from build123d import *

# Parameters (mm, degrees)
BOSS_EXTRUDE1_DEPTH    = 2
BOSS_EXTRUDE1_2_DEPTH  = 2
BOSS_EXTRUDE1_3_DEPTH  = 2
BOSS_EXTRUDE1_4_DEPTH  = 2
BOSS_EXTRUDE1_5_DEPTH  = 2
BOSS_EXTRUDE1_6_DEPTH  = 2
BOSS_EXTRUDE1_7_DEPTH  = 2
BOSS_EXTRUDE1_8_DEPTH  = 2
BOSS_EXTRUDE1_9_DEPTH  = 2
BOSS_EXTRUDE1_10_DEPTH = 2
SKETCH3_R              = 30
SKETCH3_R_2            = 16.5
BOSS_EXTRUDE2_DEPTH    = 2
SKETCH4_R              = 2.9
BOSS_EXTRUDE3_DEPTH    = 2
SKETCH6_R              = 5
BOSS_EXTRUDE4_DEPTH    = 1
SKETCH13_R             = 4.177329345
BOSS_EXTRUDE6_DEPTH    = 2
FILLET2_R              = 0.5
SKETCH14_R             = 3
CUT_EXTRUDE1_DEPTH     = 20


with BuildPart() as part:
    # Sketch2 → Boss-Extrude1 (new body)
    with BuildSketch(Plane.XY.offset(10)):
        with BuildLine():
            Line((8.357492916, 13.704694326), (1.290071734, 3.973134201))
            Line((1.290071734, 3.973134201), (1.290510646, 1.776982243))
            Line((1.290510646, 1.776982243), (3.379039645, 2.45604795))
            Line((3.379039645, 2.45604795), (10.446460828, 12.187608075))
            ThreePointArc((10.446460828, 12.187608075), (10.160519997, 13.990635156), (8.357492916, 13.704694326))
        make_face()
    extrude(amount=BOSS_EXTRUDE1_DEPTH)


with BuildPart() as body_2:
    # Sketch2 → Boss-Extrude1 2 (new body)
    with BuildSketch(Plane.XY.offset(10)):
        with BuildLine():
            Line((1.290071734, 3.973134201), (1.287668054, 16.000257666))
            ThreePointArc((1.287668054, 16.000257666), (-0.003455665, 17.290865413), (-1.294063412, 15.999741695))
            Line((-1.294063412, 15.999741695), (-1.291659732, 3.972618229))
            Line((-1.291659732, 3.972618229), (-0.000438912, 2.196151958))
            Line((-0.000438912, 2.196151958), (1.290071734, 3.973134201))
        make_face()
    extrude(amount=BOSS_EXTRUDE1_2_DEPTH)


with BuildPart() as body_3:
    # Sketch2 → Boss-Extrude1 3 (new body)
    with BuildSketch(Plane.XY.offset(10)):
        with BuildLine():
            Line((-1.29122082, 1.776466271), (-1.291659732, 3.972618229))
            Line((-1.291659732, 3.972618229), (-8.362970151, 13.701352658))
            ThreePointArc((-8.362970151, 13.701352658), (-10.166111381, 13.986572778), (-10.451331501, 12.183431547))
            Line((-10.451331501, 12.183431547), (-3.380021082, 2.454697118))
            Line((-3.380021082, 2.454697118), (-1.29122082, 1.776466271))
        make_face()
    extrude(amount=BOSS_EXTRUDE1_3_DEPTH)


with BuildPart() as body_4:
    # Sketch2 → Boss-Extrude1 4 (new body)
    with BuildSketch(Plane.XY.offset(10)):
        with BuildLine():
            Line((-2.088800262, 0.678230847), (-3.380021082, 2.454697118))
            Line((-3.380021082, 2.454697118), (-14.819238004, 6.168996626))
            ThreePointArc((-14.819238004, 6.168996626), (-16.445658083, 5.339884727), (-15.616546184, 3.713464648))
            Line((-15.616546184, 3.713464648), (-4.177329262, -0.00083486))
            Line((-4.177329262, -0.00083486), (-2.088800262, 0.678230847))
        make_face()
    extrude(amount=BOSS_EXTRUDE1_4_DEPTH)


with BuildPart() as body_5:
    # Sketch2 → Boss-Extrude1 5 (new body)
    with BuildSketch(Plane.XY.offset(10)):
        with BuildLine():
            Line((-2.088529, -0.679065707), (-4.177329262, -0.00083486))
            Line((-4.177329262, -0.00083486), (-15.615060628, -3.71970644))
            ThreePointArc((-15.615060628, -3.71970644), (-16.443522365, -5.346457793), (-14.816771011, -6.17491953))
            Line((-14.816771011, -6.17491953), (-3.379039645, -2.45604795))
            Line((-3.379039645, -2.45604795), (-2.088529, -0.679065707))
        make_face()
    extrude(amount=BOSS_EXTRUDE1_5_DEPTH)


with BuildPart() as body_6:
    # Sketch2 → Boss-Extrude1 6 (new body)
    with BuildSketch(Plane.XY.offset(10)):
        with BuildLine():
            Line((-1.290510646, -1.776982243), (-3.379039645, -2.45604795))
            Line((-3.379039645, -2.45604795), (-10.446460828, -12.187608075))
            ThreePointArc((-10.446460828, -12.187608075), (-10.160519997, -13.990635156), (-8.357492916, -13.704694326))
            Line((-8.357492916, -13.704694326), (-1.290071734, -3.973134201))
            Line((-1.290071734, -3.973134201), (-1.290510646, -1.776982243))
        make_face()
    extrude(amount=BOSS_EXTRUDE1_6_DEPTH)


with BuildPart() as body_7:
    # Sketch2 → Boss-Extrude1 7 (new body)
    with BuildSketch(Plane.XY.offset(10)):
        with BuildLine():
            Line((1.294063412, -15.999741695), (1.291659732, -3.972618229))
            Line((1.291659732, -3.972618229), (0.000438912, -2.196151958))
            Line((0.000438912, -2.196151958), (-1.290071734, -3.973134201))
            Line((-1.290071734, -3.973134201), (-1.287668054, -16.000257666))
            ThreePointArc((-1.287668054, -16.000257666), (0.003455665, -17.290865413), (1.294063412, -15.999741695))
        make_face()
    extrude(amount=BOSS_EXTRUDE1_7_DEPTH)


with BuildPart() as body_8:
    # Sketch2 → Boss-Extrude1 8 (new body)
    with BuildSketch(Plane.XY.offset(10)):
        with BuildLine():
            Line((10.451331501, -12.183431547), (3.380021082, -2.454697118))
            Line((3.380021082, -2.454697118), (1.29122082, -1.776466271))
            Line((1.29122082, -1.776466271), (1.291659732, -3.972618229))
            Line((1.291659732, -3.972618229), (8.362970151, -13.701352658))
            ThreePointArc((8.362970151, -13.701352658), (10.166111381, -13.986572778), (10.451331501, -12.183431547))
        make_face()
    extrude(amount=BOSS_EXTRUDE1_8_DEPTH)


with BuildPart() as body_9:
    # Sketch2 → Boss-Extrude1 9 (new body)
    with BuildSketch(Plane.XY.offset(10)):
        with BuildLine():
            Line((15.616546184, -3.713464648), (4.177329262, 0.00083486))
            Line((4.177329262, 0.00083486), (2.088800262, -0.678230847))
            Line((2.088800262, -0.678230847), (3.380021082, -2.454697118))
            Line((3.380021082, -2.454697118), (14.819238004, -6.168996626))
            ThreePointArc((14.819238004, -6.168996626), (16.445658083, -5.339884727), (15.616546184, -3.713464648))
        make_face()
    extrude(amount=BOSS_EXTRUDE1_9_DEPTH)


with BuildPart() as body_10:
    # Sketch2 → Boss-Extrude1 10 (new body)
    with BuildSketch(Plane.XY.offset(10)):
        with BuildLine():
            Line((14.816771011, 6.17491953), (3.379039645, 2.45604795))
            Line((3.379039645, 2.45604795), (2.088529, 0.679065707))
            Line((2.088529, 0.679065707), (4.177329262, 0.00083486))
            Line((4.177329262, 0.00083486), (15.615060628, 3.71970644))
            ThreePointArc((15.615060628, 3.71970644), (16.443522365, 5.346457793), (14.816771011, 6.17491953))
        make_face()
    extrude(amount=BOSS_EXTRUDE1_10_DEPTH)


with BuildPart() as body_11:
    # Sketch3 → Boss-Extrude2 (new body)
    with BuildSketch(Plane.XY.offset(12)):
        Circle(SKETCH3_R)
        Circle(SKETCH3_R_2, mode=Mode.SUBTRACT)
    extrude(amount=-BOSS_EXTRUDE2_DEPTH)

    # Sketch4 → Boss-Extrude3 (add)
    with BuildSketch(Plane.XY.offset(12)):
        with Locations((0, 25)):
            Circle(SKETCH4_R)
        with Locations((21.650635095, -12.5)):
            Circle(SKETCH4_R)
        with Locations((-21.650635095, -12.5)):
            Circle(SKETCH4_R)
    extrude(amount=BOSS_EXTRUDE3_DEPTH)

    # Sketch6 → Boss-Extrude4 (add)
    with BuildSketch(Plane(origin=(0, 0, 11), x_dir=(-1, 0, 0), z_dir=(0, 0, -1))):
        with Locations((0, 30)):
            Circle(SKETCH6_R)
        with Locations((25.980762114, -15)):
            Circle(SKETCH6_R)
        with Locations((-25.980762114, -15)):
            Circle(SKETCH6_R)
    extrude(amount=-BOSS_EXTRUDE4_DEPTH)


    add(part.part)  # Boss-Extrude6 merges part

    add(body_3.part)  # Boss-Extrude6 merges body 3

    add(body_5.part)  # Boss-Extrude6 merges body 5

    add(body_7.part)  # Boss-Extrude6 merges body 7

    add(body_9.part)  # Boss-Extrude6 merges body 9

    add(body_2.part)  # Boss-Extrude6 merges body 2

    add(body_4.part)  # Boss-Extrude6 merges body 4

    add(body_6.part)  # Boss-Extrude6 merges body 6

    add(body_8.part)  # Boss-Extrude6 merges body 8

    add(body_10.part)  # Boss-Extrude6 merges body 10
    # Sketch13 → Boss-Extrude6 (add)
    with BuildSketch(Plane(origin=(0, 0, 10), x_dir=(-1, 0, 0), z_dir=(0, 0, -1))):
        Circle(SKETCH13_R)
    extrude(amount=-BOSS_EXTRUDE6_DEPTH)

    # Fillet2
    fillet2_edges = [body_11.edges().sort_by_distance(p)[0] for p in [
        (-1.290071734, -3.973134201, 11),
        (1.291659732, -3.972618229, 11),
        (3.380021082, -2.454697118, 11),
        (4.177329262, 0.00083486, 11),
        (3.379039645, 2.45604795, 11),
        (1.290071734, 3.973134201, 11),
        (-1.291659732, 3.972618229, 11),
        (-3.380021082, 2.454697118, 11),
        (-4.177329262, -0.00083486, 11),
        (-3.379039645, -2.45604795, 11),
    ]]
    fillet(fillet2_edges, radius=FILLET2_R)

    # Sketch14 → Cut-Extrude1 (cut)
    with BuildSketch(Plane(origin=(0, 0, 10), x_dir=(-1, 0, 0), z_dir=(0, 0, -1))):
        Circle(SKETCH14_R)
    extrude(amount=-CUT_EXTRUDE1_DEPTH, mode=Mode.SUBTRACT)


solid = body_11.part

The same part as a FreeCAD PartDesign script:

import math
import FreeCAD as App
import Part
import Sketcher

V = App.Vector
Q = App.Units.Quantity


def edges_at(feature, points):
    """Names of the edges that pass closest to the given points."""
    edges = feature.Shape.Edges
    near = lambda p: min(range(len(edges)), key=lambda i: edges[i].distToShape(Part.Vertex(*p))[0])
    return sorted({f"Edge{near(p) + 1}" for p in points})

doc = App.newDocument("Part")
body = doc.addObject("PartDesign::Body", "Body")

# Sketch on XY plane
sketch1 = body.newObject("Sketcher::SketchObject", "Sketch")
sketch1.AttachmentSupport = (doc.getObject("XY_Plane"), [""])
sketch1.MapMode = "FlatFace"
sketch1.AttachmentOffset = App.Placement(V(0, 0, 10), App.Rotation())
sketch1.addGeometry(Part.LineSegment(V(8.4, 13.7, 0), V(1.3, 4, 0)), False)
sketch1.addGeometry(Part.LineSegment(V(1.3, 4, 0), V(1.3, 1.8, 0)), False)
sketch1.addGeometry(Part.LineSegment(V(1.3, 1.8, 0), V(3.4, 2.5, 0)), False)
sketch1.addGeometry(Part.LineSegment(V(3.4, 2.5, 0), V(10.4, 12.2, 0)), False)
sketch1.addGeometry(Part.ArcOfCircle(Part.Circle(V(9.4, 12.9, 0), V(0, 0, 1), 1.3), math.radians(-36), math.radians(144)), False)
sketch1.addConstraint(Sketcher.Constraint("Coincident", 0, 2, 1, 1))
sketch1.addConstraint(Sketcher.Constraint("Coincident", 1, 2, 2, 1))
sketch1.addConstraint(Sketcher.Constraint("Coincident", 2, 2, 3, 1))
sketch1.addConstraint(Sketcher.Constraint("Tangent", 3, 2, 4, 1))
sketch1.addConstraint(Sketcher.Constraint("Tangent", 4, 2, 0, 1))
sketch1.addConstraint(Sketcher.Constraint("Parallel", 0, 3))
sketch1.addConstraint(Sketcher.Constraint("Equal", 1, 2))
sketch1.addConstraint(Sketcher.Constraint("Equal", 0, 3))
sketch1.addConstraint(Sketcher.Constraint("Radius", 4, Q("1.290866 mm")))
sketch1.addConstraint(Sketcher.Constraint("DistanceY", -1, 1, 4, 3, Q("12.946151 mm")))
sketch1.addConstraint(Sketcher.Constraint("DistanceX", -1, 1, 0, 2, Q("1.290072 mm")))
sketch1.addConstraint(Sketcher.Constraint("DistanceX", -1, 1, 1, 2, Q("1.290511 mm")))
sketch1.addConstraint(Sketcher.Constraint("DistanceX", -1, 1, 2, 2, Q("3.37904 mm")))
sketch1.addConstraint(Sketcher.Constraint("DistanceX", -1, 1, 3, 2, Q("10.446461 mm")))
pad1 = body.newObject("PartDesign::Pad", "Pad")
pad1.Profile = sketch1
pad1.Length = 2
body2 = doc.addObject("PartDesign::Body", "Body001")

# Sketch on XY plane
sketch2 = body2.newObject("Sketcher::SketchObject", "Sketch001")
sketch2.AttachmentSupport = (doc.getObject("XY_Plane001"), [""])
sketch2.MapMode = "FlatFace"
sketch2.AttachmentOffset = App.Placement(V(0, 0, 10), App.Rotation())
sketch2.addGeometry(Part.LineSegment(V(1.3, 4, 0), V(1.3, 16, 0)), False)
sketch2.addGeometry(Part.ArcOfCircle(Part.Circle(V(0, 16, 0), V(0, 0, 1), 1.3), math.radians(0), math.radians(180)), False)
sketch2.addGeometry(Part.LineSegment(V(-1.3, 16, 0), V(-1.3, 4, 0)), False)
sketch2.addGeometry(Part.LineSegment(V(-1.3, 4, 0), V(0, 2.2, 0)), False)
sketch2.addGeometry(Part.LineSegment(V(0, 2.2, 0), V(1.3, 4, 0)), False)
sketch2.addConstraint(Sketcher.Constraint("Tangent", 0, 2, 1, 1))
sketch2.addConstraint(Sketcher.Constraint("Tangent", 1, 2, 2, 1))
sketch2.addConstraint(Sketcher.Constraint("Coincident", 2, 2, 3, 1))
sketch2.addConstraint(Sketcher.Constraint("Coincident", 3, 2, 4, 1))
sketch2.addConstraint(Sketcher.Constraint("Coincident", 4, 2, 0, 1))
sketch2.addConstraint(Sketcher.Constraint("Parallel", 0, 2))
sketch2.addConstraint(Sketcher.Constraint("Equal", 0, 2))
sketch2.addConstraint(Sketcher.Constraint("Equal", 3, 4))
sketch2.addConstraint(Sketcher.Constraint("DistanceY", -1, 1, 1, 3, Q("16 mm")))
sketch2.addConstraint(Sketcher.Constraint("Radius", 1, Q("1.290866 mm")))
sketch2.addConstraint(Sketcher.Constraint("DistanceX", -1, 1, 0, 2, Q("1.287668 mm")))
sketch2.addConstraint(Sketcher.Constraint("DistanceY", -1, 1, 1, 2, Q("15.999742 mm")))
sketch2.addConstraint(Sketcher.Constraint("DistanceY", -1, 1, 2, 2, Q("3.972618 mm")))
sketch2.addConstraint(Sketcher.Constraint("DistanceY", -1, 1, 3, 2, Q("2.196152 mm")))
pad2 = body2.newObject("PartDesign::Pad", "Pad001")
pad2.Profile = sketch2
pad2.Length = 2
body3 = doc.addObject("PartDesign::Body", "Body002")

# Sketch on XY plane
sketch3 = body3.newObject("Sketcher::SketchObject", "Sketch002")
sketch3.AttachmentSupport = (doc.getObject("XY_Plane002"), [""])
sketch3.MapMode = "FlatFace"
sketch3.AttachmentOffset = App.Placement(V(0, 0, 10), App.Rotation())
sketch3.addGeometry(Part.LineSegment(V(-1.3, 1.8, 0), V(-1.3, 4, 0)), False)
sketch3.addGeometry(Part.LineSegment(V(-1.3, 4, 0), V(-8.4, 13.7, 0)), False)
sketch3.addGeometry(Part.ArcOfCircle(Part.Circle(V(-9.4, 12.9, 0), V(0, 0, 1), 1.3), math.radians(36), math.radians(216)), False)
sketch3.addGeometry(Part.LineSegment(V(-10.5, 12.2, 0), V(-3.4, 2.5, 0)), False)
sketch3.addGeometry(Part.LineSegment(V(-3.4, 2.5, 0), V(-1.3, 1.8, 0)), False)
sketch3.addConstraint(Sketcher.Constraint("Coincident", 0, 2, 1, 1))
sketch3.addConstraint(Sketcher.Constraint("Tangent", 1, 2, 2, 1))
sketch3.addConstraint(Sketcher.Constraint("Tangent", 2, 2, 3, 1))
sketch3.addConstraint(Sketcher.Constraint("Coincident", 3, 2, 4, 1))
sketch3.addConstraint(Sketcher.Constraint("Coincident", 4, 2, 0, 1))
sketch3.addConstraint(Sketcher.Constraint("Parallel", 1, 3))
sketch3.addConstraint(Sketcher.Constraint("Equal", 1, 3))
sketch3.addConstraint(Sketcher.Constraint("Equal", 0, 4))
sketch3.addConstraint(Sketcher.Constraint("Radius", 2, Q("1.290866 mm")))
sketch3.addConstraint(Sketcher.Constraint("DistanceX", 3, 2, 4, 2, Q("2.0888 mm")))
sketch3.addConstraint(Sketcher.Constraint("DistanceX", 2, 3, -1, 1, Q("9.407151 mm")))
sketch3.addConstraint(Sketcher.Constraint("DistanceX", 0, 2, -1, 1, Q("1.29166 mm")))
sketch3.addConstraint(Sketcher.Constraint("DistanceY", -1, 1, 0, 2, Q("3.972618 mm")))
sketch3.addConstraint(Sketcher.Constraint("DistanceX", 1, 2, -1, 1, Q("8.36297 mm")))
pad3 = body3.newObject("PartDesign::Pad", "Pad002")
pad3.Profile = sketch3
pad3.Length = 2
body4 = doc.addObject("PartDesign::Body", "Body003")

# Sketch on XY plane
sketch4 = body4.newObject("Sketcher::SketchObject", "Sketch003")
sketch4.AttachmentSupport = (doc.getObject("XY_Plane003"), [""])
sketch4.MapMode = "FlatFace"
sketch4.AttachmentOffset = App.Placement(V(0, 0, 10), App.Rotation())
sketch4.addGeometry(Part.LineSegment(V(-2.1, 0.7, 0), V(-3.4, 2.5, 0)), False)
sketch4.addGeometry(Part.LineSegment(V(-3.4, 2.5, 0), V(-14.8, 6.2, 0)), False)
sketch4.addGeometry(Part.ArcOfCircle(Part.Circle(V(-15.2, 4.9, 0), V(0, 0, 1), 1.3), math.radians(72), math.radians(252)), False)
sketch4.addGeometry(Part.LineSegment(V(-15.6, 3.7, 0), V(-4.2, 0, 0)), False)
sketch4.addGeometry(Part.LineSegment(V(-4.2, 0, 0), V(-2.1, 0.7, 0)), False)
sketch4.addConstraint(Sketcher.Constraint("Coincident", 0, 2, 1, 1))
sketch4.addConstraint(Sketcher.Constraint("Tangent", 1, 2, 2, 1))
sketch4.addConstraint(Sketcher.Constraint("Tangent", 2, 2, 3, 1))
sketch4.addConstraint(Sketcher.Constraint("Coincident", 3, 2, 4, 1))
sketch4.addConstraint(Sketcher.Constraint("Coincident", 4, 2, 0, 1))
sketch4.addConstraint(Sketcher.Constraint("Parallel", 1, 3))
sketch4.addConstraint(Sketcher.Constraint("Equal", 1, 3))
sketch4.addConstraint(Sketcher.Constraint("Equal", 0, 4))
sketch4.addConstraint(Sketcher.Constraint("Radius", 2, Q("1.290866 mm")))
sketch4.addConstraint(Sketcher.Constraint("DistanceY", 4, 2, 2, 3, Q("4.263 mm")))
sketch4.addConstraint(Sketcher.Constraint("DistanceX", 4, 2, -1, 1, Q("2.0888 mm")))
sketch4.addConstraint(Sketcher.Constraint("DistanceY", 0, 2, 1, 2, Q("3.7143 mm")))
sketch4.addConstraint(Sketcher.Constraint("DistanceY", -1, 1, 2, 3, Q("4.941231 mm")))
sketch4.addConstraint(Sketcher.Constraint("DistanceX", 0, 2, -1, 1, Q("3.380021 mm")))
pad4 = body4.newObject("PartDesign::Pad", "Pad003")
pad4.Profile = sketch4
pad4.Length = 2
body5 = doc.addObject("PartDesign::Body", "Body004")

# Sketch on XY plane
sketch5 = body5.newObject("Sketcher::SketchObject", "Sketch004")
sketch5.AttachmentSupport = (doc.getObject("XY_Plane004"), [""])
sketch5.MapMode = "FlatFace"
sketch5.AttachmentOffset = App.Placement(V(0, 0, 10), App.Rotation())
sketch5.addGeometry(Part.LineSegment(V(-2.1, -0.7, 0), V(-4.2, 0, 0)), False)
sketch5.addGeometry(Part.LineSegment(V(-4.2, 0, 0), V(-15.6, -3.7, 0)), False)
sketch5.addGeometry(Part.ArcOfCircle(Part.Circle(V(-15.2, -4.9, 0), V(0, 0, 1), 1.3), math.radians(108), math.radians(288)), False)
sketch5.addGeometry(Part.LineSegment(V(-14.8, -6.2, 0), V(-3.4, -2.5, 0)), False)
sketch5.addGeometry(Part.LineSegment(V(-3.4, -2.5, 0), V(-2.1, -0.7, 0)), False)
sketch5.addConstraint(Sketcher.Constraint("Coincident", 0, 2, 1, 1))
sketch5.addConstraint(Sketcher.Constraint("Tangent", 1, 2, 2, 1))
sketch5.addConstraint(Sketcher.Constraint("Tangent", 2, 2, 3, 1))
sketch5.addConstraint(Sketcher.Constraint("Coincident", 3, 2, 4, 1))
sketch5.addConstraint(Sketcher.Constraint("Coincident", 4, 2, 0, 1))
sketch5.addConstraint(Sketcher.Constraint("Parallel", 1, 3))
sketch5.addConstraint(Sketcher.Constraint("Equal", 1, 3))
sketch5.addConstraint(Sketcher.Constraint("Equal", 0, 4))
sketch5.addConstraint(Sketcher.Constraint("Radius", 2, Q("1.290866 mm")))
sketch5.addConstraint(Sketcher.Constraint("DistanceX", 0, 2, 4, 2, Q("2.0888 mm")))
sketch5.addConstraint(Sketcher.Constraint("DistanceX", 0, 2, -1, 1, Q("4.177329 mm")))
sketch5.addConstraint(Sketcher.Constraint("DistanceX", 1, 2, -1, 1, Q("15.615061 mm")))
sketch5.addConstraint(Sketcher.Constraint("DistanceX", 2, 2, -1, 1, Q("14.816771 mm")))
sketch5.addConstraint(Sketcher.Constraint("DistanceY", 2, 2, -1, 1, Q("6.17492 mm")))
pad5 = body5.newObject("PartDesign::Pad", "Pad004")
pad5.Profile = sketch5
pad5.Length = 2
body6 = doc.addObject("PartDesign::Body", "Body005")

# Sketch on XY plane
sketch6 = body6.newObject("Sketcher::SketchObject", "Sketch005")
sketch6.AttachmentSupport = (doc.getObject("XY_Plane005"), [""])
sketch6.MapMode = "FlatFace"
sketch6.AttachmentOffset = App.Placement(V(0, 0, 10), App.Rotation())
sketch6.addGeometry(Part.LineSegment(V(-1.3, -1.8, 0), V(-3.4, -2.5, 0)), False)
sketch6.addGeometry(Part.LineSegment(V(-3.4, -2.5, 0), V(-10.4, -12.2, 0)), False)
sketch6.addGeometry(Part.ArcOfCircle(Part.Circle(V(-9.4, -12.9, 0), V(0, 0, 1), 1.3), math.radians(144), math.radians(324)), False)
sketch6.addGeometry(Part.LineSegment(V(-8.4, -13.7, 0), V(-1.3, -4, 0)), False)
sketch6.addGeometry(Part.LineSegment(V(-1.3, -4, 0), V(-1.3, -1.8, 0)), False)
sketch6.addConstraint(Sketcher.Constraint("Coincident", 0, 2, 1, 1))
sketch6.addConstraint(Sketcher.Constraint("Tangent", 1, 2, 2, 1))
sketch6.addConstraint(Sketcher.Constraint("Tangent", 2, 2, 3, 1))
sketch6.addConstraint(Sketcher.Constraint("Coincident", 3, 2, 4, 1))
sketch6.addConstraint(Sketcher.Constraint("Coincident", 4, 2, 0, 1))
sketch6.addConstraint(Sketcher.Constraint("Parallel", 1, 3))
sketch6.addConstraint(Sketcher.Constraint("Equal", 1, 3))
sketch6.addConstraint(Sketcher.Constraint("Equal", 0, 4))
sketch6.addConstraint(Sketcher.Constraint("Radius", 2, Q("1.290866 mm")))
sketch6.addConstraint(Sketcher.Constraint("DistanceY", 2, 3, -1, 1, Q("12.946151 mm")))
sketch6.addConstraint(Sketcher.Constraint("DistanceX", 0, 2, -1, 1, Q("3.37904 mm")))
sketch6.addConstraint(Sketcher.Constraint("DistanceX", 1, 2, -1, 1, Q("10.446461 mm")))
sketch6.addConstraint(Sketcher.Constraint("DistanceY", 1, 2, -1, 1, Q("12.187608 mm")))
sketch6.addConstraint(Sketcher.Constraint("DistanceX", 4, 2, -1, 1, Q("1.290511 mm")))
pad6 = body6.newObject("PartDesign::Pad", "Pad005")
pad6.Profile = sketch6
pad6.Length = 2
body7 = doc.addObject("PartDesign::Body", "Body006")

# Sketch on XY plane
sketch7 = body7.newObject("Sketcher::SketchObject", "Sketch006")
sketch7.AttachmentSupport = (doc.getObject("XY_Plane006"), [""])
sketch7.MapMode = "FlatFace"
sketch7.AttachmentOffset = App.Placement(V(0, 0, 10), App.Rotation())
sketch7.addGeometry(Part.LineSegment(V(1.3, -16, 0), V(1.3, -4, 0)), False)
sketch7.addGeometry(Part.LineSegment(V(1.3, -4, 0), V(0, -2.2, 0)), False)
sketch7.addGeometry(Part.LineSegment(V(0, -2.2, 0), V(-1.3, -4, 0)), False)
sketch7.addGeometry(Part.LineSegment(V(-1.3, -4, 0), V(-1.3, -16, 0)), False)
sketch7.addGeometry(Part.ArcOfCircle(Part.Circle(V(0, -16, 0), V(0, 0, 1), 1.3), math.radians(-180), math.radians(0)), False)
sketch7.addConstraint(Sketcher.Constraint("Coincident", 0, 2, 1, 1))
sketch7.addConstraint(Sketcher.Constraint("Coincident", 1, 2, 2, 1))
sketch7.addConstraint(Sketcher.Constraint("Coincident", 2, 2, 3, 1))
sketch7.addConstraint(Sketcher.Constraint("Tangent", 3, 2, 4, 1))
sketch7.addConstraint(Sketcher.Constraint("Tangent", 4, 2, 0, 1))
sketch7.addConstraint(Sketcher.Constraint("Parallel", 0, 3))
sketch7.addConstraint(Sketcher.Constraint("Equal", 1, 2))
sketch7.addConstraint(Sketcher.Constraint("Equal", 0, 3))
sketch7.addConstraint(Sketcher.Constraint("DistanceY", 4, 3, -1, 1, Q("16 mm")))
sketch7.addConstraint(Sketcher.Constraint("Radius", 4, Q("1.290866 mm")))
sketch7.addConstraint(Sketcher.Constraint("DistanceX", -1, 1, 0, 2, Q("1.29166 mm")))
sketch7.addConstraint(Sketcher.Constraint("DistanceY", 0, 2, -1, 1, Q("3.972618 mm")))
sketch7.addConstraint(Sketcher.Constraint("DistanceX", -1, 1, 1, 2, Q("0.000439 mm")))
sketch7.addConstraint(Sketcher.Constraint("DistanceY", 1, 2, -1, 1, Q("2.196152 mm")))
pad7 = body7.newObject("PartDesign::Pad", "Pad006")
pad7.Profile = sketch7
pad7.Length = 2
body8 = doc.addObject("PartDesign::Body", "Body007")

# Sketch on XY plane
sketch8 = body8.newObject("Sketcher::SketchObject", "Sketch007")
sketch8.AttachmentSupport = (doc.getObject("XY_Plane007"), [""])
sketch8.MapMode = "FlatFace"
sketch8.AttachmentOffset = App.Placement(V(0, 0, 10), App.Rotation())
sketch8.addGeometry(Part.LineSegment(V(10.5, -12.2, 0), V(3.4, -2.5, 0)), False)
sketch8.addGeometry(Part.LineSegment(V(3.4, -2.5, 0), V(1.3, -1.8, 0)), False)
sketch8.addGeometry(Part.LineSegment(V(1.3, -1.8, 0), V(1.3, -4, 0)), False)
sketch8.addGeometry(Part.LineSegment(V(1.3, -4, 0), V(8.4, -13.7, 0)), False)
sketch8.addGeometry(Part.ArcOfCircle(Part.Circle(V(9.4, -12.9, 0), V(0, 0, 1), 1.3), math.radians(-144), math.radians(36)), False)
sketch8.addConstraint(Sketcher.Constraint("Coincident", 0, 2, 1, 1))
sketch8.addConstraint(Sketcher.Constraint("Coincident", 1, 2, 2, 1))
sketch8.addConstraint(Sketcher.Constraint("Coincident", 2, 2, 3, 1))
sketch8.addConstraint(Sketcher.Constraint("Tangent", 3, 2, 4, 1))
sketch8.addConstraint(Sketcher.Constraint("Tangent", 4, 2, 0, 1))
sketch8.addConstraint(Sketcher.Constraint("Parallel", 0, 3))
sketch8.addConstraint(Sketcher.Constraint("Equal", 1, 2))
sketch8.addConstraint(Sketcher.Constraint("Equal", 0, 3))
sketch8.addConstraint(Sketcher.Constraint("Radius", 4, Q("1.290866 mm")))
sketch8.addConstraint(Sketcher.Constraint("DistanceX", 1, 2, 0, 2, Q("2.0888 mm")))
sketch8.addConstraint(Sketcher.Constraint("DistanceX", -1, 1, 4, 3, Q("9.407151 mm")))
sketch8.addConstraint(Sketcher.Constraint("DistanceX", -1, 1, 0, 2, Q("3.380021 mm")))
sketch8.addConstraint(Sketcher.Constraint("DistanceX", -1, 1, 2, 2, Q("1.29166 mm")))
sketch8.addConstraint(Sketcher.Constraint("DistanceY", 2, 2, -1, 1, Q("3.972618 mm")))
pad8 = body8.newObject("PartDesign::Pad", "Pad007")
pad8.Profile = sketch8
pad8.Length = 2
body9 = doc.addObject("PartDesign::Body", "Body008")

# Sketch on XY plane
sketch9 = body9.newObject("Sketcher::SketchObject", "Sketch008")
sketch9.AttachmentSupport = (doc.getObject("XY_Plane008"), [""])
sketch9.MapMode = "FlatFace"
sketch9.AttachmentOffset = App.Placement(V(0, 0, 10), App.Rotation())
sketch9.addGeometry(Part.LineSegment(V(15.6, -3.7, 0), V(4.2, 0, 0)), False)
sketch9.addGeometry(Part.LineSegment(V(4.2, 0, 0), V(2.1, -0.7, 0)), False)
sketch9.addGeometry(Part.LineSegment(V(2.1, -0.7, 0), V(3.4, -2.5, 0)), False)
sketch9.addGeometry(Part.LineSegment(V(3.4, -2.5, 0), V(14.8, -6.2, 0)), False)
sketch9.addGeometry(Part.ArcOfCircle(Part.Circle(V(15.2, -4.9, 0), V(0, 0, 1), 1.3), math.radians(-108), math.radians(72)), False)
sketch9.addConstraint(Sketcher.Constraint("Coincident", 0, 2, 1, 1))
sketch9.addConstraint(Sketcher.Constraint("Coincident", 1, 2, 2, 1))
sketch9.addConstraint(Sketcher.Constraint("Coincident", 2, 2, 3, 1))
sketch9.addConstraint(Sketcher.Constraint("Tangent", 3, 2, 4, 1))
sketch9.addConstraint(Sketcher.Constraint("Tangent", 4, 2, 0, 1))
sketch9.addConstraint(Sketcher.Constraint("Parallel", 0, 3))
sketch9.addConstraint(Sketcher.Constraint("Equal", 1, 2))
sketch9.addConstraint(Sketcher.Constraint("Equal", 0, 3))
sketch9.addConstraint(Sketcher.Constraint("Radius", 4, Q("1.290866 mm")))
sketch9.addConstraint(Sketcher.Constraint("DistanceY", 4, 3, 1, 2, Q("4.263 mm")))
sketch9.addConstraint(Sketcher.Constraint("DistanceX", -1, 1, 1, 2, Q("2.0888 mm")))
sketch9.addConstraint(Sketcher.Constraint("DistanceY", 3, 2, 2, 2, Q("3.7143 mm")))
sketch9.addConstraint(Sketcher.Constraint("DistanceY", 4, 3, -1, 1, Q("4.941231 mm")))
sketch9.addConstraint(Sketcher.Constraint("DistanceX", -1, 1, 0, 2, Q("4.177329 mm")))
pad9 = body9.newObject("PartDesign::Pad", "Pad008")
pad9.Profile = sketch9
pad9.Length = 2
body10 = doc.addObject("PartDesign::Body", "Body009")

# Sketch on XY plane
sketch10 = body10.newObject("Sketcher::SketchObject", "Sketch009")
sketch10.AttachmentSupport = (doc.getObject("XY_Plane009"), [""])
sketch10.MapMode = "FlatFace"
sketch10.AttachmentOffset = App.Placement(V(0, 0, 10), App.Rotation())
sketch10.addGeometry(Part.LineSegment(V(14.8, 6.2, 0), V(3.4, 2.5, 0)), False)
sketch10.addGeometry(Part.LineSegment(V(3.4, 2.5, 0), V(2.1, 0.7, 0)), False)
sketch10.addGeometry(Part.LineSegment(V(2.1, 0.7, 0), V(4.2, 0, 0)), False)
sketch10.addGeometry(Part.LineSegment(V(4.2, 0, 0), V(15.6, 3.7, 0)), False)
sketch10.addGeometry(Part.ArcOfCircle(Part.Circle(V(15.2, 4.9, 0), V(0, 0, 1), 1.3), math.radians(-72), math.radians(108)), False)
sketch10.addConstraint(Sketcher.Constraint("Coincident", 0, 2, 1, 1))
sketch10.addConstraint(Sketcher.Constraint("Coincident", 1, 2, 2, 1))
sketch10.addConstraint(Sketcher.Constraint("Coincident", 2, 2, 3, 1))
sketch10.addConstraint(Sketcher.Constraint("Tangent", 3, 2, 4, 1))
sketch10.addConstraint(Sketcher.Constraint("Tangent", 4, 2, 0, 1))
sketch10.addConstraint(Sketcher.Constraint("Parallel", 0, 3))
sketch10.addConstraint(Sketcher.Constraint("Equal", 1, 2))
sketch10.addConstraint(Sketcher.Constraint("Equal", 0, 3))
sketch10.addConstraint(Sketcher.Constraint("Radius", 4, Q("1.290866 mm")))
sketch10.addConstraint(Sketcher.Constraint("DistanceX", 1, 2, 2, 2, Q("2.0888 mm")))
sketch10.addConstraint(Sketcher.Constraint("DistanceX", -1, 1, 0, 2, Q("3.37904 mm")))
sketch10.addConstraint(Sketcher.Constraint("DistanceX", -1, 1, 1, 2, Q("2.088529 mm")))
sketch10.addConstraint(Sketcher.Constraint("DistanceX", -1, 1, 3, 2, Q("15.615061 mm")))
sketch10.addConstraint(Sketcher.Constraint("DistanceY", -1, 1, 4, 2, Q("6.17492 mm")))
pad10 = body10.newObject("PartDesign::Pad", "Pad009")
pad10.Profile = sketch10
pad10.Length = 2
body11 = doc.addObject("PartDesign::Body", "Body010")

# Sketch on XY plane
sketch11 = body11.newObject("Sketcher::SketchObject", "Sketch010")
sketch11.AttachmentSupport = (doc.getObject("XY_Plane010"), [""])
sketch11.MapMode = "FlatFace"
sketch11.AttachmentOffset = App.Placement(V(0, 0, 12), App.Rotation())
sketch11.addGeometry(Part.Circle(V(0, 0, 0), V(0, 0, 1), 30), False)
sketch11.addGeometry(Part.Circle(V(0, 0, 0), V(0, 0, 1), 16), False)
sketch11.addConstraint(Sketcher.Constraint("Coincident", 0, 3, -1, 1))
sketch11.addConstraint(Sketcher.Constraint("Coincident", 1, 3, -1, 1))
sketch11.addConstraint(Sketcher.Constraint("Diameter", 0, Q("60 mm")))
sketch11.addConstraint(Sketcher.Constraint("Diameter", 1, Q("33 mm")))
pad11 = body11.newObject("PartDesign::Pad", "Pad010")
pad11.Profile = sketch11
pad11.Length = 2
pad11.Reversed = True

# Sketch on XY plane
sketch12 = body11.newObject("Sketcher::SketchObject", "Sketch011")
sketch12.AttachmentSupport = (doc.getObject("XY_Plane010"), [""])
sketch12.MapMode = "FlatFace"
sketch12.AttachmentOffset = App.Placement(V(0, 0, 12), App.Rotation())
sketch12.addGeometry(Part.Circle(V(0, 25, 0), V(0, 0, 1), 2.9), False)
sketch12.addGeometry(Part.Circle(V(21.7, -12.5, 0), V(0, 0, 1), 2.9), False)
sketch12.addGeometry(Part.Circle(V(-21.7, -12.5, 0), V(0, 0, 1), 2.9), False)
sketch12.addConstraint(Sketcher.Constraint("Equal", 0, 1))
sketch12.addConstraint(Sketcher.Constraint("Equal", 1, 2))
sketch12.addConstraint(Sketcher.Constraint("Symmetric", 1, 3, 2, 3, -2))
sketch12.addConstraint(Sketcher.Constraint("PointOnObject", 0, 3, -2))
sketch12.addConstraint(Sketcher.Constraint("Diameter", 0, Q("5.8 mm")))
sketch12.addConstraint(Sketcher.Constraint("DistanceY", -1, 1, 0, 3, Q("25 mm")))
sketch12.addConstraint(Sketcher.Constraint("DistanceY", 1, 3, -1, 1, Q("12.5 mm")))
sketch12.addConstraint(Sketcher.Constraint("DistanceX", 2, 3, 1, 3, Q("43.30127 mm")))
pad12 = body11.newObject("PartDesign::Pad", "Pad011")
pad12.Profile = sketch12
pad12.Length = 2

# Sketch on XY plane
sketch13 = body11.newObject("Sketcher::SketchObject", "Sketch012")
sketch13.AttachmentSupport = (doc.getObject("XY_Plane010"), [""])
sketch13.MapMode = "FlatFace"
sketch13.AttachmentOffset = App.Placement(V(0, 0, 11), App.Rotation())
sketch13.addGeometry(Part.Circle(V(0, 30, 0), V(0, 0, 1), 5), False)
sketch13.addGeometry(Part.Circle(V(-26, -15, 0), V(0, 0, 1), 5), False)
sketch13.addGeometry(Part.Circle(V(26, -15, 0), V(0, 0, 1), 5), False)
sketch13.addConstraint(Sketcher.Constraint("Equal", 0, 1))
sketch13.addConstraint(Sketcher.Constraint("Equal", 1, 2))
sketch13.addConstraint(Sketcher.Constraint("Symmetric", 1, 3, 2, 3, -2))
sketch13.addConstraint(Sketcher.Constraint("PointOnObject", 0, 3, -2))
sketch13.addConstraint(Sketcher.Constraint("Diameter", 0, Q("10 mm")))
sketch13.addConstraint(Sketcher.Constraint("DistanceY", -1, 1, 0, 3, Q("30 mm")))
sketch13.addConstraint(Sketcher.Constraint("DistanceY", 1, 3, -1, 1, Q("15 mm")))
sketch13.addConstraint(Sketcher.Constraint("DistanceX", 1, 3, -1, 1, Q("25.980762 mm")))
pad13 = body11.newObject("PartDesign::Pad", "Pad012")
pad13.Profile = sketch13
pad13.Length = 1
doc.recompute()

boolean = body11.newObject("PartDesign::Boolean", "Boolean")
boolean.Type = "Fuse"
boolean.addObjects([body])
doc.recompute()

boolean2 = body11.newObject("PartDesign::Boolean", "Boolean001")
boolean2.Type = "Fuse"
boolean2.addObjects([body3])
doc.recompute()

boolean3 = body11.newObject("PartDesign::Boolean", "Boolean002")
boolean3.Type = "Fuse"
boolean3.addObjects([body5])
doc.recompute()

boolean4 = body11.newObject("PartDesign::Boolean", "Boolean003")
boolean4.Type = "Fuse"
boolean4.addObjects([body7])
doc.recompute()

boolean5 = body11.newObject("PartDesign::Boolean", "Boolean004")
boolean5.Type = "Fuse"
boolean5.addObjects([body9])
doc.recompute()

boolean6 = body11.newObject("PartDesign::Boolean", "Boolean005")
boolean6.Type = "Fuse"
boolean6.addObjects([body2])
doc.recompute()

boolean7 = body11.newObject("PartDesign::Boolean", "Boolean006")
boolean7.Type = "Fuse"
boolean7.addObjects([body4])
doc.recompute()

boolean8 = body11.newObject("PartDesign::Boolean", "Boolean007")
boolean8.Type = "Fuse"
boolean8.addObjects([body6])
doc.recompute()

boolean9 = body11.newObject("PartDesign::Boolean", "Boolean008")
boolean9.Type = "Fuse"
boolean9.addObjects([body8])
doc.recompute()

boolean10 = body11.newObject("PartDesign::Boolean", "Boolean009")
boolean10.Type = "Fuse"
boolean10.addObjects([body10])

# Sketch on XY plane
sketch14 = body11.newObject("Sketcher::SketchObject", "Sketch013")
sketch14.AttachmentSupport = (doc.getObject("XY_Plane010"), [""])
sketch14.MapMode = "FlatFace"
sketch14.AttachmentOffset = App.Placement(V(0, 0, 10), App.Rotation())
sketch14.addGeometry(Part.Circle(V(0, 0, 0), V(0, 0, 1), 4.2), False)
sketch14.addConstraint(Sketcher.Constraint("Coincident", 0, 3, -1, 1))
sketch14.addConstraint(Sketcher.Constraint("Diameter", 0, Q("8.354659 mm")))
pad14 = body11.newObject("PartDesign::Pad", "Pad013")
pad14.Profile = sketch14
pad14.Length = 2
doc.recompute()

fillet = body11.newObject("PartDesign::Fillet", "Fillet")
fillet.Base = (pad14, edges_at(pad14, [
    (-1.29, -3.973, 11),
    (1.292, -3.973, 11),
    (3.38, -2.455, 11),
    (4.177, 0.001, 11),
    (3.379, 2.456, 11),
    (1.29, 3.973, 11),
    (-1.292, 3.973, 11),
    (-3.38, 2.455, 11),
    (-4.177, -0.001, 11),
    (-3.379, -2.456, 11),
]))
fillet.Radius = 0.5

# Sketch on XY plane
sketch15 = body11.newObject("Sketcher::SketchObject", "Sketch014")
sketch15.AttachmentSupport = (doc.getObject("XY_Plane010"), [""])
sketch15.MapMode = "FlatFace"
sketch15.AttachmentOffset = App.Placement(V(0, 0, 10), App.Rotation())
sketch15.addGeometry(Part.Circle(V(0, 0, 0), V(0, 0, 1), 3), False)
sketch15.addConstraint(Sketcher.Constraint("Coincident", 0, 3, -1, 1))
sketch15.addConstraint(Sketcher.Constraint("Diameter", 0, Q("6 mm")))
pocket1 = body11.newObject("PartDesign::Pocket", "Pocket")
pocket1.Profile = sketch15
pocket1.Length = 20
pocket1.Reversed = True

doc.recompute()
